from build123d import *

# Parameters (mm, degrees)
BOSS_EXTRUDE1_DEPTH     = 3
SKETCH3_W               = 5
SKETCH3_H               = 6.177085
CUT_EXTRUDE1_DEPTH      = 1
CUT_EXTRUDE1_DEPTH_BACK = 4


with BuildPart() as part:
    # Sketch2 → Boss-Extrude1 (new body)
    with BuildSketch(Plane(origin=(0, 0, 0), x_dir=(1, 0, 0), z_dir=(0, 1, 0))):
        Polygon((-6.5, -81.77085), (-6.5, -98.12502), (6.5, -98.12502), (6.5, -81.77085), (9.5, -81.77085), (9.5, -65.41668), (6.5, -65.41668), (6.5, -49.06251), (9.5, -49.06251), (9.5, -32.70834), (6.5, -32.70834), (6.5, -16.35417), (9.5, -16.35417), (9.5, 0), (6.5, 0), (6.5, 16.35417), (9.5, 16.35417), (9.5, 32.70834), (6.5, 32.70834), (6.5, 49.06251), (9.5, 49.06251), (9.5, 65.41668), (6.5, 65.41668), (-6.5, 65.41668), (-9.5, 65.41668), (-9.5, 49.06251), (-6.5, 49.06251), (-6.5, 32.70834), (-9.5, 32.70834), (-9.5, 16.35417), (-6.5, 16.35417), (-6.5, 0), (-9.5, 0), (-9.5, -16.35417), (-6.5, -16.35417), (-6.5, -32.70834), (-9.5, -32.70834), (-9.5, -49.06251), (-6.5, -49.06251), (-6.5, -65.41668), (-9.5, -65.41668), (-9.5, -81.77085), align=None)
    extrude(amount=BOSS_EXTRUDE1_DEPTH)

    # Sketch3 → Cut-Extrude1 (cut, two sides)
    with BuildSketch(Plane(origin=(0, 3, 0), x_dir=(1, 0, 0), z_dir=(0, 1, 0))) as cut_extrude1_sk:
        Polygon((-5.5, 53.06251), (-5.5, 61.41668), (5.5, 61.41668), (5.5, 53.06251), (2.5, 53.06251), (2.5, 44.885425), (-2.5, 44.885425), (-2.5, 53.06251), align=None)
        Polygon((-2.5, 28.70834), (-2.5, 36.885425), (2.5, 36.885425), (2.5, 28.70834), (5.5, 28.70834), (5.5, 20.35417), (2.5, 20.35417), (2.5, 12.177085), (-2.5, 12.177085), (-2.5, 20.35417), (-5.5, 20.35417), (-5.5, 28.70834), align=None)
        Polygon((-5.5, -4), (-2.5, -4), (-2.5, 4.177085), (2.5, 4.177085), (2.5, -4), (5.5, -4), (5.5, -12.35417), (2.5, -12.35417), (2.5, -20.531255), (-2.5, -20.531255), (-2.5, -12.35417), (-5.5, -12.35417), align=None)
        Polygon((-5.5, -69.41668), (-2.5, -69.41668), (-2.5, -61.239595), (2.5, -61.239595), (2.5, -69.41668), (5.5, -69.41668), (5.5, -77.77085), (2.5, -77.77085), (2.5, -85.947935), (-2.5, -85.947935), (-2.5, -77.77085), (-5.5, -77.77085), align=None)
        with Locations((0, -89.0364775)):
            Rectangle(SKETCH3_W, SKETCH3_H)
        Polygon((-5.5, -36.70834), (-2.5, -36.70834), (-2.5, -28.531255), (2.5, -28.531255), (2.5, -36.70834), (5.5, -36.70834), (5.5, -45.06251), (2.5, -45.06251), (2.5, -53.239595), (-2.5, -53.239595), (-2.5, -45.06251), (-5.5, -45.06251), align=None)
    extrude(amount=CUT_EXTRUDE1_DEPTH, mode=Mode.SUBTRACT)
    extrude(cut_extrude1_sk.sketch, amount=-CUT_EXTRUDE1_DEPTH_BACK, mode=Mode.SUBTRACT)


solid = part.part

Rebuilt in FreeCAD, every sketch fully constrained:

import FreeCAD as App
import Part
import Sketcher

V = App.Vector


def add_polygon(sketch, points):
    """Adds a closed chain of lines whose ends are joined by coincident constraints."""
    first, n = sketch.GeometryCount, len(points)
    for a, b in zip(points, points[1:] + points[:1]):
        sketch.addGeometry(Part.LineSegment(App.Vector(*a, 0), App.Vector(*b, 0)), False)
    for i in range(n):
        sketch.addConstraint(Sketcher.Constraint("Coincident", first + i, 2, first + (i + 1) % n, 1))

doc = App.newDocument("Part")
body = doc.addObject("PartDesign::Body", "Body")

# Sketch on XZ plane
sketch1 = body.newObject("Sketcher::SketchObject", "Sketch")
sketch1.AttachmentSupport = (doc.getObject("XZ_Plane"), [""])
sketch1.MapMode = "FlatFace"
add_polygon(sketch1, [(-6.5, 81.8), (-6.5, 98.1), (6.5, 98.1), (6.5, 81.8), (9.5, 81.8), (9.5, 65.4), (6.5, 65.4), (6.5, 49.1), (9.5, 49.1), (9.5, 32.7), (6.5, 32.7), (6.5, 16.4), (9.5, 16.4), (9.5, 0), (6.5, 0), (6.5, -16.4), (9.5, -16.4), (9.5, -32.7), (6.5, -32.7), (6.5, -49.1), (9.5, -49.1), (9.5, -65.4), (-9.5, -65.4), (-9.5, -49.1), (-6.5, -49.1), (-6.5, -32.7), (-9.5, -32.7), (-9.5, -16.4), (-6.5, -16.4), (-6.5, 0), (-9.5, 0), (-9.5, 16.4), (-6.5, 16.4), (-6.5, 32.7), (-9.5, 32.7), (-9.5, 49.1), (-6.5, 49.1), (-6.5, 65.4), (-9.5, 65.4), (-9.5, 81.8)])  # lines 0-39
sketch1.addConstraint(Sketcher.Constraint("Vertical", 0))
sketch1.addConstraint(Sketcher.Constraint("Horizontal", 1))
sketch1.addConstraint(Sketcher.Constraint("Vertical", 2))
sketch1.addConstraint(Sketcher.Constraint("Horizontal", 3))
sketch1.addConstraint(Sketcher.Constraint("Vertical", 4))
sketch1.addConstraint(Sketcher.Constraint("Horizontal", 5))
sketch1.addConstraint(Sketcher.Constraint("Vertical", 6))
sketch1.addConstraint(Sketcher.Constraint("Horizontal", 7))
sketch1.addConstraint(Sketcher.Constraint("Vertical", 8))
sketch1.addConstraint(Sketcher.Constraint("Horizontal", 9))
sketch1.addConstraint(Sketcher.Constraint("Vertical", 10))
sketch1.addConstraint(Sketcher.Constraint("Horizontal", 11))
sketch1.addConstraint(Sketcher.Constraint("Vertical", 12))
sketch1.addConstraint(Sketcher.Constraint("Horizontal", 13))
sketch1.addConstraint(Sketcher.Constraint("Vertical", 14))
sketch1.addConstraint(Sketcher.Constraint("Horizontal", 15))
sketch1.addConstraint(Sketcher.Constraint("Vertical", 16))
sketch1.addConstraint(Sketcher.Constraint("Horizontal", 17))
sketch1.addConstraint(Sketcher.Constraint("Vertical", 18))
sketch1.addConstraint(Sketcher.Constraint("Horizontal", 19))
sketch1.addConstraint(Sketcher.Constraint("Vertical", 20))
sketch1.addConstraint(Sketcher.Constraint("Horizontal", 21))
sketch1.addConstraint(Sketcher.Constraint("Vertical", 22))
sketch1.addConstraint(Sketcher.Constraint("Horizontal", 23))
sketch1.addConstraint(Sketcher.Constraint("Vertical", 24))
sketch1.addConstraint(Sketcher.Constraint("Horizontal", 25))
sketch1.addConstraint(Sketcher.Constraint("Vertical", 26))
sketch1.addConstraint(Sketcher.Constraint("Horizontal", 27))
sketch1.addConstraint(Sketcher.Constraint("Vertical", 28))
sketch1.addConstraint(Sketcher.Constraint("Horizontal", 29))
sketch1.addConstraint(Sketcher.Constraint("Vertical", 30))
sketch1.addConstraint(Sketcher.Constraint("Horizontal", 31))
sketch1.addConstraint(Sketcher.Constraint("Vertical", 32))
sketch1.addConstraint(Sketcher.Constraint("Horizontal", 33))
sketch1.addConstraint(Sketcher.Constraint("Vertical", 34))
sketch1.addConstraint(Sketcher.Constraint("Horizontal", 35))
sketch1.addConstraint(Sketcher.Constraint("Vertical", 36))
sketch1.addConstraint(Sketcher.Constraint("Horizontal", 37))
sketch1.addConstraint(Sketcher.Constraint("Vertical", 38))
sketch1.addConstraint(Sketcher.Constraint("Horizontal", 39))
sketch1.addConstraint(Sketcher.Constraint("Symmetric", 4, 2, 21, 2, -1, 1))
sketch1.addConstraint(Sketcher.Constraint("Symmetric", 7, 2, 22, 2, -1, 1))
sketch1.addConstraint(Sketcher.Constraint("Symmetric", 9, 2, 24, 2, -1, 1))
sketch1.addConstraint(Sketcher.Constraint("Symmetric", 11, 2, 26, 2, -1, 1))
sketch1.addConstraint(Sketcher.Constraint("Symmetric", 13, 2, 28, 2, -1, 1))
sketch1.addConstraint(Sketcher.Constraint("Symmetric", 15, 2, 30, 2, -1, 1))
sketch1.addConstraint(Sketcher.Constraint("Symmetric", 17, 2, 32, 2, -1, 1))
sketch1.addConstraint(Sketcher.Constraint("Symmetric", 19, 2, 34, 2, -1, 1))
sketch1.addConstraint(Sketcher.Constraint("Symmetric", 20, 2, 37, 2, -1, 1))
sketch1.addConstraint(Sketcher.Constraint("Symmetric", 19, 2, 22, 2, -2))
sketch1.addConstraint(Sketcher.Constraint("Symmetric", 17, 2, 24, 2, -2))
sketch1.addConstraint(Sketcher.Constraint("Symmetric", 15, 2, 26, 2, -2))
sketch1.addConstraint(Sketcher.Constraint("Symmetric", 2, 2, 39, 2, -2))
sketch1.addConstraint(Sketcher.Constraint("PointOnObject", 12, 2, -1))
sketch1.addConstraint(Sketcher.Constraint("Vertical", 2, 2, 5, 2))
sketch1.addConstraint(Sketcher.Constraint("Vertical", 6, 2, 9, 2))
sketch1.addConstraint(Sketcher.Constraint("Vertical", 8, 2, 11, 2))
sketch1.addConstraint(Sketcher.Constraint("Vertical", 10, 2, 13, 2))
sketch1.addConstraint(Sketcher.Constraint("Vertical", 32, 2, 35, 2))
sketch1.addConstraint(Sketcher.Constraint("Equal", 2, 4))
sketch1.addConstraint(Sketcher.Constraint("Equal", 4, 6))
sketch1.addConstraint(Sketcher.Constraint("Equal", 6, 8))
sketch1.addConstraint(Sketcher.Constraint("Equal", 8, 10))
sketch1.addConstraint(Sketcher.Constraint("Equal", 10, 12))
sketch1.addConstraint(Sketcher.Constraint("DistanceX", 1, 1, 1, 2, 13.0))
sketch1.addConstraint(Sketcher.Constraint("DistanceX", 3, 1, 3, 2, 3.0))
sketch1.addConstraint(Sketcher.Constraint("DistanceY", 0, 1, 0, 2, 16.35417))
pad1 = body.newObject("PartDesign::Pad", "Pad")
pad1.Profile = sketch1
pad1.Length = 3
pad1.Reversed = True

# Sketch on XZ plane
sketch2 = body.newObject("Sketcher::SketchObject", "Sketch001")
sketch2.AttachmentSupport = (doc.getObject("XZ_Plane"), [""])
sketch2.MapMode = "FlatFace"
sketch2.AttachmentOffset = App.Placement(V(0, 0, -3), App.Rotation())
add_polygon(sketch2, [(-5.5, -61.4), (-5.5, -53.1), (-2.5, -53.1), (-2.5, -44.9), (2.5, -44.9), (2.5, -53.1), (5.5, -53.1), (5.5, -61.4)])  # lines 0-7
add_polygon(sketch2, [(-2.5, -36.9), (-2.5, -28.7), (-5.5, -28.7), (-5.5, -20.4), (-2.5, -20.4), (-2.5, -12.2), (2.5, -12.2), (2.5, -20.4), (5.5, -20.4), (5.5, -28.7), (2.5, -28.7), (2.5, -36.9)])  # lines 8-19
add_polygon(sketch2, [(-2.5, 4), (-5.5, 4), (-5.5, 12.4), (-2.5, 12.4), (-2.5, 20.5), (2.5, 20.5), (2.5, 12.4), (5.5, 12.4), (5.5, 4), (2.5, 4), (2.5, -4.2), (-2.5, -4.2)])  # lines 20-31
add_polygon(sketch2, [(-2.5, 69.4), (-5.5, 69.4), (-5.5, 77.8), (-2.5, 77.8), (-2.5, 92.1), (2.5, 92.1), (2.5, 77.8), (5.5, 77.8), (5.5, 69.4), (2.5, 69.4), (2.5, 61.2), (-2.5, 61.2)])  # lines 32-43
add_polygon(sketch2, [(-2.5, 36.7), (-5.5, 36.7), (-5.5, 45.1), (-2.5, 45.1), (-2.5, 53.2), (2.5, 53.2), (2.5, 45.1), (5.5, 45.1), (5.5, 36.7), (2.5, 36.7), (2.5, 28.5), (-2.5, 28.5)])  # lines 44-55
sketch2.addConstraint(Sketcher.Constraint("Vertical", 0))
sketch2.addConstraint(Sketcher.Constraint("Horizontal", 1))
sketch2.addConstraint(Sketcher.Constraint("Vertical", 2))
sketch2.addConstraint(Sketcher.Constraint("Horizontal", 3))
sketch2.addConstraint(Sketcher.Constraint("Vertical", 4))
sketch2.addConstraint(Sketcher.Constraint("Horizontal", 5))
sketch2.addConstraint(Sketcher.Constraint("Vertical", 6))
sketch2.addConstraint(Sketcher.Constraint("Horizontal", 7))
sketch2.addConstraint(Sketcher.Constraint("Vertical", 8))
sketch2.addConstraint(Sketcher.Constraint("Horizontal", 9))
sketch2.addConstraint(Sketcher.Constraint("Vertical", 10))
sketch2.addConstraint(Sketcher.Constraint("Horizontal", 11))
sketch2.addConstraint(Sketcher.Constraint("Vertical", 12))
sketch2.addConstraint(Sketcher.Constraint("Horizontal", 13))
sketch2.addConstraint(Sketcher.Constraint("Vertical", 14))
sketch2.addConstraint(Sketcher.Constraint("Horizontal", 15))
sketch2.addConstraint(Sketcher.Constraint("Vertical", 16))
sketch2.addConstraint(Sketcher.Constraint("Horizontal", 17))
sketch2.addConstraint(Sketcher.Constraint("Vertical", 18))
sketch2.addConstraint(Sketcher.Constraint("Horizontal", 19))
sketch2.addConstraint(Sketcher.Constraint("Horizontal", 20))
sketch2.addConstraint(Sketcher.Constraint("Vertical", 21))
sketch2.addConstraint(Sketcher.Constraint("Horizontal", 22))
sketch2.addConstraint(Sketcher.Constraint("Vertical", 23))
sketch2.addConstraint(Sketcher.Constraint("Horizontal", 24))
sketch2.addConstraint(Sketcher.Constraint("Vertical", 25))
sketch2.addConstraint(Sketcher.Constraint("Horizontal", 26))
sketch2.addConstraint(Sketcher.Constraint("Vertical", 27))
sketch2.addConstraint(Sketcher.Constraint("Horizontal", 28))
sketch2.addConstraint(Sketcher.Constraint("Vertical", 29))
sketch2.addConstraint(Sketcher.Constraint("Horizontal", 30))
sketch2.addConstraint(Sketcher.Constraint("Vertical", 31))
sketch2.addConstraint(Sketcher.Constraint("Horizontal", 32))
sketch2.addConstraint(Sketcher.Constraint("Vertical", 33))
sketch2.addConstraint(Sketcher.Constraint("Horizontal", 34))
sketch2.addConstraint(Sketcher.Constraint("Vertical", 35))
sketch2.addConstraint(Sketcher.Constraint("Horizontal", 36))
sketch2.addConstraint(Sketcher.Constraint("Vertical", 37))
sketch2.addConstraint(Sketcher.Constraint("Horizontal", 38))
sketch2.addConstraint(Sketcher.Constraint("Vertical", 39))
sketch2.addConstraint(Sketcher.Constraint("Horizontal", 40))
sketch2.addConstraint(Sketcher.Constraint("Vertical", 41))
sketch2.addConstraint(Sketcher.Constraint("Horizontal", 42))
sketch2.addConstraint(Sketcher.Constraint("Vertical", 43))
sketch2.addConstraint(Sketcher.Constraint("Horizontal", 44))
sketch2.addConstraint(Sketcher.Constraint("Vertical", 45))
sketch2.addConstraint(Sketcher.Constraint("Horizontal", 46))
sketch2.addConstraint(Sketcher.Constraint("Vertical", 47))
sketch2.addConstraint(Sketcher.Constraint("Horizontal", 48))
sketch2.addConstraint(Sketcher.Constraint("Vertical", 49))
sketch2.addConstraint(Sketcher.Constraint("Horizontal", 50))
sketch2.addConstraint(Sketcher.Constraint("Vertical", 51))
sketch2.addConstraint(Sketcher.Constraint("Horizontal", 52))
sketch2.addConstraint(Sketcher.Constraint("Vertical", 53))
sketch2.addConstraint(Sketcher.Constraint("Horizontal", 54))
sketch2.addConstraint(Sketcher.Constraint("Vertical", 55))
sketch2.addConstraint(Sketcher.Constraint("Symmetric", 1, 2, 4, 2, -2))
sketch2.addConstraint(Sketcher.Constraint("Symmetric", 11, 2, 14, 2, -2))
sketch2.addConstraint(Sketcher.Constraint("Symmetric", 9, 2, 16, 2, -2))
sketch2.addConstraint(Sketcher.Constraint("Symmetric", 22, 2, 25, 2, -2))
sketch2.addConstraint(Sketcher.Constraint("Symmetric", 20, 2, 27, 2, -2))
sketch2.addConstraint(Sketcher.Constraint("Symmetric", 34, 2, 37, 2, -2))
sketch2.addConstraint(Sketcher.Constraint("Symmetric", 32, 2, 39, 2, -2))
sketch2.addConstraint(Sketcher.Constraint("Symmetric", 46, 2, 49, 2, -2))
sketch2.addConstraint(Sketcher.Constraint("Symmetric", 44, 2, 51, 2, -2))
sketch2.addConstraint(Sketcher.Constraint("Vertical", 2, 2, 8, 2))
sketch2.addConstraint(Sketcher.Constraint("Vertical", 7, 2, 9, 2))
sketch2.addConstraint(Sketcher.Constraint("Vertical", 8, 2, 11, 2))
sketch2.addConstraint(Sketcher.Constraint("Vertical", 6, 2, 15, 2))
sketch2.addConstraint(Sketcher.Constraint("Vertical", 14, 2, 17, 2))
sketch2.addConstraint(Sketcher.Constraint("Vertical", 10, 2, 20, 2))
sketch2.addConstraint(Sketcher.Constraint("Vertical", 19, 2, 22, 2))
sketch2.addConstraint(Sketcher.Constraint("Vertical", 25, 2, 28, 2))
sketch2.addConstraint(Sketcher.Constraint("Vertical", 23, 2, 30, 2))
sketch2.addConstraint(Sketcher.Constraint("Vertical", 21, 2, 32, 2))
sketch2.addConstraint(Sketcher.Constraint("Vertical", 31, 2, 34, 2))
sketch2.addConstraint(Sketcher.Constraint("Vertical", 37, 2, 40, 2))
sketch2.addConstraint(Sketcher.Constraint("Vertical", 35, 2, 42, 2))
sketch2.addConstraint(Sketcher.Constraint("Vertical", 33, 2, 44, 2))
sketch2.addConstraint(Sketcher.Constraint("Vertical", 43, 2, 46, 2))
sketch2.addConstraint(Sketcher.Constraint("Vertical", 49, 2, 52, 2))
sketch2.addConstraint(Sketcher.Constraint("Vertical", 47, 2, 54, 2))
sketch2.addConstraint(Sketcher.Constraint("Equal", 4, 8))
sketch2.addConstraint(Sketcher.Constraint("Equal", 6, 10))
sketch2.addConstraint(Sketcher.Constraint("Equal", 8, 12))
sketch2.addConstraint(Sketcher.Constraint("Equal", 16, 21))
sketch2.addConstraint(Sketcher.Constraint("Equal", 18, 23))
sketch2.addConstraint(Sketcher.Constraint("Equal", 25, 29))
sketch2.addConstraint(Sketcher.Constraint("Equal", 27, 33))
sketch2.addConstraint(Sketcher.Constraint("Equal", 31, 41))
sketch2.addConstraint(Sketcher.Constraint("Equal", 39, 45))
sketch2.addConstraint(Sketcher.Constraint("Equal", 43, 47))
sketch2.addConstraint(Sketcher.Constraint("Equal", 49, 53))
sketch2.addConstraint(Sketcher.Constraint("DistanceX", 1, 1, 1, 2, 3.0))
sketch2.addConstraint(Sketcher.Constraint("DistanceX", 3, 1, 3, 2, 5.0))
sketch2.addConstraint(Sketcher.Constraint("DistanceY", -1, 1, 20, 2, 4.0))
sketch2.addConstraint(Sketcher.Constraint("DistanceY", 3, 2, 18, 2, 8.0))
sketch2.addConstraint(Sketcher.Constraint("DistanceY", 13, 2, 29, 2, 8.0))
sketch2.addConstraint(Sketcher.Constraint("DistanceY", 47, 2, 42, 2, 8.0))
sketch2.addConstraint(Sketcher.Constraint("DistanceY", 24, 2, 53, 2, 8.0))
sketch2.addConstraint(Sketcher.Constraint("DistanceY", 0, 1, 0, 2, 8.35417))
sketch2.addConstraint(Sketcher.Constraint("DistanceY", 35, 1, 35, 2, 14.35417))
sketch2.addConstraint(Sketcher.Constraint("DistanceY", 2, 1, 2, 2, 8.177085))
pocket1 = body.newObject("PartDesign::Pocket", "Pocket")
pocket1.Profile = sketch2
pocket1.Type = "ThroughAll"
pocket1.Midplane = True

doc.recompute()
